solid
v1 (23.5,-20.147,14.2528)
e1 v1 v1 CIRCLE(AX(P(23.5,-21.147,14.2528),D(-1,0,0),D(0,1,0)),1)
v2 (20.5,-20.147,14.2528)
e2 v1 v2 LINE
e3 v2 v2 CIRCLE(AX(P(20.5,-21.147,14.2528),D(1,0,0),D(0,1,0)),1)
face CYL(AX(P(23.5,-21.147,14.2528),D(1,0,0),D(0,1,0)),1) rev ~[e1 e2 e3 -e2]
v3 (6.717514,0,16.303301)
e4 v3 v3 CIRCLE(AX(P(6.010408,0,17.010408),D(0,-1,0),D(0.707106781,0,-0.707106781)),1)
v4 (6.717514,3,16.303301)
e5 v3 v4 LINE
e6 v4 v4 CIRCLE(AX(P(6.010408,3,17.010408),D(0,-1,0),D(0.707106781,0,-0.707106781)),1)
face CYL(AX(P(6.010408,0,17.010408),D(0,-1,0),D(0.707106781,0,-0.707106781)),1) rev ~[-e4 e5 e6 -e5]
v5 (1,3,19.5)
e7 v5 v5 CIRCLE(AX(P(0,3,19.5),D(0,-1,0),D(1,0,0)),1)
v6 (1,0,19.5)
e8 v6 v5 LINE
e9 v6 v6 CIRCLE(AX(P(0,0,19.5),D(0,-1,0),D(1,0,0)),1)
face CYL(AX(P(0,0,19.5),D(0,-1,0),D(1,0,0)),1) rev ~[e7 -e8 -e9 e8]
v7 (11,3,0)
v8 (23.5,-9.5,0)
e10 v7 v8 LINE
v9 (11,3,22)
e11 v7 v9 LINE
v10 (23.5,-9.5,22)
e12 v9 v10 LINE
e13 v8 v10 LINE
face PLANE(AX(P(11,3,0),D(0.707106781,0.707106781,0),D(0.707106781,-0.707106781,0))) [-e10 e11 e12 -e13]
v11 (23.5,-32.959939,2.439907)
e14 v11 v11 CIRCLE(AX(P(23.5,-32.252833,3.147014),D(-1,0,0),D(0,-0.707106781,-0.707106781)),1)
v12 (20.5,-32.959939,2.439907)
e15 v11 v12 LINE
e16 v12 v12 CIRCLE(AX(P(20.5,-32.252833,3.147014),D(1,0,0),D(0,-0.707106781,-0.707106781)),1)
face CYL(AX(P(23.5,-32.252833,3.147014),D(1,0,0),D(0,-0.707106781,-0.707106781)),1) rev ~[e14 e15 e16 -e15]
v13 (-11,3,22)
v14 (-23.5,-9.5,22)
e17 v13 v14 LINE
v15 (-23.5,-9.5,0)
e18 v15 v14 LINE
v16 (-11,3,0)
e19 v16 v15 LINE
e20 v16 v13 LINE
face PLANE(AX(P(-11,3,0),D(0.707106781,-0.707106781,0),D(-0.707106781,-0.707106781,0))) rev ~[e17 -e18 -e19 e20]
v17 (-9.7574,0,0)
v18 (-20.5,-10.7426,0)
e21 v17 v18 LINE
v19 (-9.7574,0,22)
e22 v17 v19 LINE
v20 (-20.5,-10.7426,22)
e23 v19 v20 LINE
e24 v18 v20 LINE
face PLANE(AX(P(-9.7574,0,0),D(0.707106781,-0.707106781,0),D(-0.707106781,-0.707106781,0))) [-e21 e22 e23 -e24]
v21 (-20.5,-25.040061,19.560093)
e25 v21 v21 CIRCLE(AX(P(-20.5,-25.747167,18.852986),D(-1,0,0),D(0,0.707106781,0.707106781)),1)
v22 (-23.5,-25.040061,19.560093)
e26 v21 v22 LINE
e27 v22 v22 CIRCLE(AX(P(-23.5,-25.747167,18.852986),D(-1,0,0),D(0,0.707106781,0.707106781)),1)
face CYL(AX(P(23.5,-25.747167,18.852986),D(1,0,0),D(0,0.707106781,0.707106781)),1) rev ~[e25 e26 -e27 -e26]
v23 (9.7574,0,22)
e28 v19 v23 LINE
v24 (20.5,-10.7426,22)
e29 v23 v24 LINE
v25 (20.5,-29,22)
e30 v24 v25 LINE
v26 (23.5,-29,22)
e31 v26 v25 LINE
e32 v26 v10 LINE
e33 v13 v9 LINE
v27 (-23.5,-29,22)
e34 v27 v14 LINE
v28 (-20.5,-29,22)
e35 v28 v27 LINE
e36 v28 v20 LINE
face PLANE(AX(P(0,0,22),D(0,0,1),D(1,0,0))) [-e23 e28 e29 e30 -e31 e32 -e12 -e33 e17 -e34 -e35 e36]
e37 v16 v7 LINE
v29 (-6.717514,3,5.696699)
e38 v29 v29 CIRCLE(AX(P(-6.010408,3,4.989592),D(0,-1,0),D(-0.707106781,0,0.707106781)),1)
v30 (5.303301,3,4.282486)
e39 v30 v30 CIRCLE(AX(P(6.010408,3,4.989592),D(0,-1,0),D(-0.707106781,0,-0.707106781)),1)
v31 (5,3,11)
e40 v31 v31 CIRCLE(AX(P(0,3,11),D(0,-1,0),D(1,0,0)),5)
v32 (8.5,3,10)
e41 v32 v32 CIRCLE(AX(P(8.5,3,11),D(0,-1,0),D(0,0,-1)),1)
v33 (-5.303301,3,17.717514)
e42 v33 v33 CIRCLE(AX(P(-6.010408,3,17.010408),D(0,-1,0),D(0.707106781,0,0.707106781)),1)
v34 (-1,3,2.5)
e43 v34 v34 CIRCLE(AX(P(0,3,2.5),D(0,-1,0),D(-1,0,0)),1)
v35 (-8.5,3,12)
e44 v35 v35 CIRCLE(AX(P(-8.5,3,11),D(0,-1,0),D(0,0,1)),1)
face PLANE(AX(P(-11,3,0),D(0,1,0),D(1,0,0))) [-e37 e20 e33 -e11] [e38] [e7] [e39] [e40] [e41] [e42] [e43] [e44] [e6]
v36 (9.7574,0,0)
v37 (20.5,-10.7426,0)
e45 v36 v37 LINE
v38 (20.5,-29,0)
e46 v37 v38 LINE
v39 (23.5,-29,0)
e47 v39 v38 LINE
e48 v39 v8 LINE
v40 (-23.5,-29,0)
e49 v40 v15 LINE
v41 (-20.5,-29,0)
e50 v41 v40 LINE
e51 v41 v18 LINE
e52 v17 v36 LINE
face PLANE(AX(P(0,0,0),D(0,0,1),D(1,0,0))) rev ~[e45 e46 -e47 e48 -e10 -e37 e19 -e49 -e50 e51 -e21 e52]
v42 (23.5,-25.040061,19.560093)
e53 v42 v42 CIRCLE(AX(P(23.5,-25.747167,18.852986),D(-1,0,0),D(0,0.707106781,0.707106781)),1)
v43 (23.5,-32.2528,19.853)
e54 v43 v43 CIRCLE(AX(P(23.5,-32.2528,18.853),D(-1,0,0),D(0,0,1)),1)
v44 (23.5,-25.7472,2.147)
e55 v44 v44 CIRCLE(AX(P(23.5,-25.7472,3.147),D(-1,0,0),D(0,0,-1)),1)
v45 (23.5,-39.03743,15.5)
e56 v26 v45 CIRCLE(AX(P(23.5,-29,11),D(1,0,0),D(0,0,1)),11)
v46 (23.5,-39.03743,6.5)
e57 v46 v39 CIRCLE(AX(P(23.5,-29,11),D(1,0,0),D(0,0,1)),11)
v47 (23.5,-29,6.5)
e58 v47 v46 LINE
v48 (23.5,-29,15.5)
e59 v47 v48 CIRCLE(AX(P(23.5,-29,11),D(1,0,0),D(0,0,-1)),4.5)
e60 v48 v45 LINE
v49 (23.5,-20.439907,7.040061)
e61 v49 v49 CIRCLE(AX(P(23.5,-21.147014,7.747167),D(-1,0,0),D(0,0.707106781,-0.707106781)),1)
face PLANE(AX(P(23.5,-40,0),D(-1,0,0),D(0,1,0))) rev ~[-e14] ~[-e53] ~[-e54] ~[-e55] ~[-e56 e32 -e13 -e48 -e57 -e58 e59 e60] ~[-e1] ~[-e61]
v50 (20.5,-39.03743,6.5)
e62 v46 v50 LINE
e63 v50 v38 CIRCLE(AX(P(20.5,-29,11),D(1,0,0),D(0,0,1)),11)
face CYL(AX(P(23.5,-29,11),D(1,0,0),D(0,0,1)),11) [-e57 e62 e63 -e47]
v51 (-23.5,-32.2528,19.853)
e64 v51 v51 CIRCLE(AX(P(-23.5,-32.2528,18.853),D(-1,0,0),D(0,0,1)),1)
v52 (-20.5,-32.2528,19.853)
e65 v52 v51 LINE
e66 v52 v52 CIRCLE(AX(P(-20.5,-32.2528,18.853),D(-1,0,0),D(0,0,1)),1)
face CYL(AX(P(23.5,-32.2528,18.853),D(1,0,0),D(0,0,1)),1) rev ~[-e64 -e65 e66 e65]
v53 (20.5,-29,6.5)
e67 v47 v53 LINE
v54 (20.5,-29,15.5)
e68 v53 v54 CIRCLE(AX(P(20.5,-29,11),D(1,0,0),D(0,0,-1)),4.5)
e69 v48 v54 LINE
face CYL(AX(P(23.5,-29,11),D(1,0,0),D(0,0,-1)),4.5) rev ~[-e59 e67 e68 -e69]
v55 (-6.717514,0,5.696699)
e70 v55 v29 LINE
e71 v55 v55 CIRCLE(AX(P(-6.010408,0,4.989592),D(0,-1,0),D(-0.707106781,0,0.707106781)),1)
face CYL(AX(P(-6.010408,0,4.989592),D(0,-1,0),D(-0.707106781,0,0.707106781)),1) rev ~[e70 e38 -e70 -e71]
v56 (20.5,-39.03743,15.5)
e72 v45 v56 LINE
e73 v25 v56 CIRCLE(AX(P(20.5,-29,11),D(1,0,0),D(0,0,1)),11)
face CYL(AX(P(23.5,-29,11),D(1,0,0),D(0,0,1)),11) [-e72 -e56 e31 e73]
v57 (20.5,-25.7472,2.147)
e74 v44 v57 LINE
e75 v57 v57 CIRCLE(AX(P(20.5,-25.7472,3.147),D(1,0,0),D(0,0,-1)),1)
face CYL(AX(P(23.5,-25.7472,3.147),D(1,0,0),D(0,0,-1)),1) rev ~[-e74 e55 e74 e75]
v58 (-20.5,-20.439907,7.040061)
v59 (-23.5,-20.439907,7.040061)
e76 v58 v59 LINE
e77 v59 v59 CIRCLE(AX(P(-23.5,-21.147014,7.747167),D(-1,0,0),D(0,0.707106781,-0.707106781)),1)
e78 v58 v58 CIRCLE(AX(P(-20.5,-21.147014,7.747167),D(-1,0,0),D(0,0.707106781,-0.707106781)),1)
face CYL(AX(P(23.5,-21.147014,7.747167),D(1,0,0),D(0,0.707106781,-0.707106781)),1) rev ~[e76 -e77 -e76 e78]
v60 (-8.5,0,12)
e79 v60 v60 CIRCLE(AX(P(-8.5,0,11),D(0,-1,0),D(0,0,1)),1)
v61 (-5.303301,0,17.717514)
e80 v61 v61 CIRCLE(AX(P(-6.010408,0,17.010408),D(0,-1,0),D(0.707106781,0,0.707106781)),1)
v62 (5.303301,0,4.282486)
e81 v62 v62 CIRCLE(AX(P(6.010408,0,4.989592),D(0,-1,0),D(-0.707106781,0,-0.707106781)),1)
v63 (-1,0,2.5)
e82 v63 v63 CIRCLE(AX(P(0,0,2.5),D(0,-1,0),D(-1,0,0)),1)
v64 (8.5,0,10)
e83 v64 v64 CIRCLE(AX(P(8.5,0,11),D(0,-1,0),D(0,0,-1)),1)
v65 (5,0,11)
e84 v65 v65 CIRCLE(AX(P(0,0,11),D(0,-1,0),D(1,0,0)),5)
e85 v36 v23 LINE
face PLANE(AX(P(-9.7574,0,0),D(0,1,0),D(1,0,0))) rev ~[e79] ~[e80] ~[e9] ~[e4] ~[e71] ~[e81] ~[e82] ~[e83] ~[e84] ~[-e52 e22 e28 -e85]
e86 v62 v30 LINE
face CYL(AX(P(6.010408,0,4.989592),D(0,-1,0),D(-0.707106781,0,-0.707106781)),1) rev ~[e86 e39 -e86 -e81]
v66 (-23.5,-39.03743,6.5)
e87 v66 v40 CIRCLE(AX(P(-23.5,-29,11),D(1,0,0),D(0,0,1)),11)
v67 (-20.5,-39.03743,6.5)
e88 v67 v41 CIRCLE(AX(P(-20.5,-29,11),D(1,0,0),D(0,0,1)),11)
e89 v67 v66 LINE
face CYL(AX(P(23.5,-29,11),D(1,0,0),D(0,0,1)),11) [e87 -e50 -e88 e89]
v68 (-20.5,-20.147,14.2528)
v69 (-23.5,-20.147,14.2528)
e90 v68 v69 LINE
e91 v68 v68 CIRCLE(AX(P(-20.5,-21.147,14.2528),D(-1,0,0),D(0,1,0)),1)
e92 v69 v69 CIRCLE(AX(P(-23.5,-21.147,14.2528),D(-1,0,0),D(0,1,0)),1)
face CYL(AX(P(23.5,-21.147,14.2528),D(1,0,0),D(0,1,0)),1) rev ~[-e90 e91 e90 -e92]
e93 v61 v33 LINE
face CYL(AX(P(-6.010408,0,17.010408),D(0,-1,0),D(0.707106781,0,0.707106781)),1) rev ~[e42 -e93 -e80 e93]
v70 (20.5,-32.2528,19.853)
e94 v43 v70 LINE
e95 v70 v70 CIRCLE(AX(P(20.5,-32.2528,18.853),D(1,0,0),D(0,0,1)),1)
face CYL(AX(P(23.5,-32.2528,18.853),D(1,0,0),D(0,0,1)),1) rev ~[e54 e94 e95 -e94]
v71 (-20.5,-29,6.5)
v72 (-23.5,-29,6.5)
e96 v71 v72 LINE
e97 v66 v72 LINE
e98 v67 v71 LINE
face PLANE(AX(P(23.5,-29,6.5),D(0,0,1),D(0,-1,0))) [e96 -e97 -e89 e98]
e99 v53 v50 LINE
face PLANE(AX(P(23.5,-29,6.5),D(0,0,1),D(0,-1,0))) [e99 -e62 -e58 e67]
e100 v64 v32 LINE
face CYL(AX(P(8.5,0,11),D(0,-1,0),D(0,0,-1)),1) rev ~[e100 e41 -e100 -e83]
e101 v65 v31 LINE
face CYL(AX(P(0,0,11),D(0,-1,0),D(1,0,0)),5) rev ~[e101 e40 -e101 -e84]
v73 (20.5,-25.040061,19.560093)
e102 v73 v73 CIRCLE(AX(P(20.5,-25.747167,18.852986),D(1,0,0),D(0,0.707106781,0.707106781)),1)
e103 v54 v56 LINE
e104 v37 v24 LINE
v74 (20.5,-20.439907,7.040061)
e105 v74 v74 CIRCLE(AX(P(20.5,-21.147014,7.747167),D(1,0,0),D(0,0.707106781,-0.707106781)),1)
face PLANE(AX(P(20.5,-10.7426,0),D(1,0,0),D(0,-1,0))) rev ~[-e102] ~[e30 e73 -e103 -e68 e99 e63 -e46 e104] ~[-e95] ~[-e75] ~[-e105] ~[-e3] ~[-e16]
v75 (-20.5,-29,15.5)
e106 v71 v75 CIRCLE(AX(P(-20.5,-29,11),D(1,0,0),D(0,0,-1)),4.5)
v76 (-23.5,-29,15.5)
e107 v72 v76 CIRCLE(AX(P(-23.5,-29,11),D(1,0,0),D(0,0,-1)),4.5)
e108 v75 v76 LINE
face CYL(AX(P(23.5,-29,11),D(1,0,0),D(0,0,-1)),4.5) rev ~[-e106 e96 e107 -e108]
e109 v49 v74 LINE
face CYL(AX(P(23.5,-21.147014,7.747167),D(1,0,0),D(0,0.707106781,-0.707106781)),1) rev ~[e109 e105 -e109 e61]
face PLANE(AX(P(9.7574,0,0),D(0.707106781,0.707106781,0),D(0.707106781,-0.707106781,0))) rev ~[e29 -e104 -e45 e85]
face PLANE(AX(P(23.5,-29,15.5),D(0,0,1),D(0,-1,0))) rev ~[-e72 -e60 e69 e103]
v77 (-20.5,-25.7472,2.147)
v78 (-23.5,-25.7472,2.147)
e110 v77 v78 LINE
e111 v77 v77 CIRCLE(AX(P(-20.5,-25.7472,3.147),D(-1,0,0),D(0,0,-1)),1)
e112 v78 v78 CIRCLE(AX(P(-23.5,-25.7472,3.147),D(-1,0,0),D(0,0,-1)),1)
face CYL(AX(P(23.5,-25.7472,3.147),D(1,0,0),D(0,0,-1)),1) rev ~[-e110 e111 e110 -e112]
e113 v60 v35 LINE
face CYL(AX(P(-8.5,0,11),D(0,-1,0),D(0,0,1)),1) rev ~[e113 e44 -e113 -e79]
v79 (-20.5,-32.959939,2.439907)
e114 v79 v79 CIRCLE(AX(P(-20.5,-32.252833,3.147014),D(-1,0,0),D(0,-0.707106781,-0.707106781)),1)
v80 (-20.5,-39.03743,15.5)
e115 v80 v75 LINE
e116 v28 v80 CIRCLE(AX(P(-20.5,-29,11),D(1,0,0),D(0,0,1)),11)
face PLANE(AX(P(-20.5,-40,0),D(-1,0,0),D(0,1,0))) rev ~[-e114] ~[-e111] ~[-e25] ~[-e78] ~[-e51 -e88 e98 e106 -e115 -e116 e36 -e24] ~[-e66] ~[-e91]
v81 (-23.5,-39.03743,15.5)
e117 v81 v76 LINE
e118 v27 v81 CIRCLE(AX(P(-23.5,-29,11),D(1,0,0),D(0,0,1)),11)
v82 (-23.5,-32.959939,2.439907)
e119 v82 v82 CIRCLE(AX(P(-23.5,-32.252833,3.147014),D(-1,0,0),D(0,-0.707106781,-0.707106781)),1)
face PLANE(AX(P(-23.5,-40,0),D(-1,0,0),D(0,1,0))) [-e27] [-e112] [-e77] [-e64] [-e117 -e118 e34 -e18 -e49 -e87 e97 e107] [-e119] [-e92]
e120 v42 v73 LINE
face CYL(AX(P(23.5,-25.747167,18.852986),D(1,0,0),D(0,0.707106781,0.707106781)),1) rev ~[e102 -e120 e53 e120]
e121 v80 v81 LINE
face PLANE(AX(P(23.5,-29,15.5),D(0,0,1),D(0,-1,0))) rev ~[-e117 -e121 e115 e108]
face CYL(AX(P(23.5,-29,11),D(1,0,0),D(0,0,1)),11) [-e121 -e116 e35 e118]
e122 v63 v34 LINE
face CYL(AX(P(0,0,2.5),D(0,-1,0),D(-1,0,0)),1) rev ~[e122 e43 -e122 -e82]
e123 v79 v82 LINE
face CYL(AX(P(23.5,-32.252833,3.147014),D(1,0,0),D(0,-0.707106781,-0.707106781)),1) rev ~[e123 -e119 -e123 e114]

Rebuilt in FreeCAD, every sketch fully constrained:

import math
import FreeCAD as App
import Part
import Sketcher
from FreeCAD import Vector
Q = App.Units.Quantity


def add_polygon(sketch, points):
    """Adds a closed chain of lines whose ends are joined by coincident constraints."""
    first, n = sketch.GeometryCount, len(points)
    for a, b in zip(points, points[1:] + points[:1]):
        sketch.addGeometry(Part.LineSegment(App.Vector(*a, 0), App.Vector(*b, 0)), False)
    for i in range(n):
        sketch.addConstraint(Sketcher.Constraint("Coincident", first + i, 2, first + (i + 1) % n, 1))

doc = App.newDocument("Part")
body = doc.addObject("PartDesign::Body", "Body")

# Sketch on XY plane
sketch1 = doc.addObject("Sketcher::SketchObject", "Sketch")
body.addObject(sketch1)
sketch1.AttachmentSupport = (doc.XY_Plane, [""])
sketch1.MapMode = "FlatFace"
add_polygon(sketch1, [(-23.5, -40), (-20.5, -40), (-20.5, -10.7), (-9.8, 0), (9.8, 0), (20.5, -10.7), (20.5, -40), (23.5, -40), (23.5, -9.5), (11, 3), (-11, 3), (-23.5, -9.5)])  # lines 0-11
sketch1.addConstraint([
    Sketcher.Constraint("Horizontal", 0),
    Sketcher.Constraint("Vertical", 1),
    Sketcher.Constraint("Horizontal", 3),
    Sketcher.Constraint("Vertical", 5),
    Sketcher.Constraint("Horizontal", 6),
    Sketcher.Constraint("Vertical", 7),
    Sketcher.Constraint("Horizontal", 9),
    Sketcher.Constraint("Vertical", 11),
    Sketcher.Constraint("Symmetric", 2, 2, 3, 2, -1, 1),
    Sketcher.Constraint("Symmetric", 1, 2, 4, 2, -2),
    Sketcher.Constraint("Symmetric", 7, 2, 10, 2, -2),
    Sketcher.Constraint("Perpendicular", 2, 4),
    Sketcher.Constraint("Parallel", 4, 8),
    Sketcher.Constraint("Perpendicular", 8, 10),
    Sketcher.Constraint("Horizontal", 0, 2, 5, 2),
    Sketcher.Constraint("DistanceX", 0, 1, 0, 2, Q("3 mm")),
    Sketcher.Constraint("DistanceX", 9, 2, 9, 1, Q("22 mm")),
    Sketcher.Constraint("DistanceY", 7, 1, 7, 2, Q("30.5 mm")),
    Sketcher.Constraint("DistanceY", 0, 2, -1, 1, Q("40 mm")),
    Sketcher.Constraint("DistanceY", -1, 1, 8, 2, Q("3 mm")),
    Sketcher.Constraint("DistanceX", 3, 1, 3, 2, Q("19.5148 mm")),
])
pad1 = doc.addObject("PartDesign::Pad", "Pad")
body.addObject(pad1)
pad1.Profile = sketch1
pad1.Length = 22

# Sketch on YZ plane
sketch2 = doc.addObject("Sketcher::SketchObject", "Sketch001")
body.addObject(sketch2)
sketch2.AttachmentSupport = (doc.YZ_Plane, [""])
sketch2.MapMode = "FlatFace"
sketch2.AttachmentOffset = App.Placement(Vector(0, 0, 23.5), App.Rotation())
sketch2.addGeometry([
    Part.ArcOfCircle(Part.Circle(Vector(-29, 11, 0), Vector(0, 0, 1), 11), math.radians(90), math.radians(156)),  # 0
    Part.LineSegment(Vector(-29, 22, 0), Vector(-41, 22, 0)),  # 1
    Part.LineSegment(Vector(-41, 22, 0), Vector(-41, 0, 0)),  # 2
    Part.LineSegment(Vector(-41, 0, 0), Vector(-29, 0, 0)),  # 3
    Part.ArcOfCircle(Part.Circle(Vector(-29, 11, 0), Vector(0, 0, 1), 11), math.radians(-156), math.radians(-90)),  # 4
    Part.LineSegment(Vector(-39, 6.5, 0), Vector(-29, 6.5, 0)),  # 5
    Part.ArcOfCircle(Part.Circle(Vector(-29, 11, 0), Vector(0, 0, 1), 4.5), math.radians(-90), math.radians(90)),  # 6
    Part.LineSegment(Vector(-29, 15.5, 0), Vector(-39, 15.5, 0)),  # 7
], False)
sketch2.addConstraint([
    Sketcher.Constraint("Tangent", 0, 1, 1, 1),
    Sketcher.Constraint("Coincident", 1, 2, 2, 1),
    Sketcher.Constraint("Coincident", 2, 2, 3, 1),
    Sketcher.Constraint("Tangent", 3, 2, 4, 2),
    Sketcher.Constraint("Coincident", 4, 1, 5, 1),
    Sketcher.Constraint("Tangent", 5, 2, 6, 1),
    Sketcher.Constraint("Tangent", 6, 2, 7, 1),
    Sketcher.Constraint("Coincident", 7, 2, 0, 2),
    Sketcher.Constraint("Horizontal", 1),
    Sketcher.Constraint("Vertical", 2),
    Sketcher.Constraint("Horizontal", 3),
    Sketcher.Constraint("Horizontal", 5),
    Sketcher.Constraint("Horizontal", 7),
    Sketcher.Constraint("Coincident", 4, 3, 0, 3),
    Sketcher.Constraint("Coincident", 6, 3, 0, 3),
    Sketcher.Constraint("Equal", 0, 4),
    Sketcher.Constraint("PointOnObject", 2, 2, -1),
    Sketcher.Constraint("Radius", 0, Q("11 mm")),
    Sketcher.Constraint("Radius", 6, Q("4.5 mm")),
    Sketcher.Constraint("DistanceX", 1, 2, 1, 1, Q("12 mm")),
    Sketcher.Constraint("DistanceX", 0, 3, -1, 1, Q("29 mm")),
])
pocket1 = doc.addObject("PartDesign::Pocket", "Pocket")
body.addObject(pocket1)
pocket1.Profile = sketch2
pocket1.Type = "ThroughAll"

# Sketch on XZ plane
sketch3 = doc.addObject("Sketcher::SketchObject", "Sketch002")
body.addObject(sketch3)
sketch3.AttachmentSupport = (doc.XZ_Plane, [""])
sketch3.MapMode = "FlatFace"
sketch3.addGeometry(Part.Circle(Vector(0, 11, 0), Vector(0, 0, 1), 5), False)
sketch3.addConstraint([
    Sketcher.Constraint("PointOnObject", 0, 3, -2),
    Sketcher.Constraint("Diameter", 0, Q("10 mm")),
    Sketcher.Constraint("DistanceY", -1, 1, 0, 3, Q("11 mm")),
])
pocket2 = doc.addObject("PartDesign::Pocket", "Pocket001")
body.addObject(pocket2)
pocket2.Profile = sketch3
pocket2.Type = "ThroughAll"

# Sketch on YZ plane
sketch4 = doc.addObject("Sketcher::SketchObject", "Sketch003")
body.addObject(sketch4)
sketch4.AttachmentSupport = (doc.YZ_Plane, [""])
sketch4.MapMode = "FlatFace"
sketch4.AttachmentOffset = App.Placement(Vector(0, 0, 23.5), App.Rotation())
sketch4.addGeometry(Part.Circle(Vector(-25.7, 3.1, 0), Vector(0, 0, 1), 1), False)
sketch4.addConstraint([
    Sketcher.Constraint("Diameter", 0, Q("2 mm")),
    Sketcher.Constraint("DistanceY", -1, 1, 0, 3, Q("3.147 mm")),
    Sketcher.Constraint("DistanceX", 0, 3, -1, 1, Q("25.7472 mm")),
])
pocket3 = doc.addObject("PartDesign::Pocket", "Pocket002")
body.addObject(pocket3)
pocket3.Profile = sketch4
pocket3.Type = "ThroughAll"
doc.recompute()

datumline = doc.addObject("PartDesign::Line", "DatumLine")
body.addObject(datumline)
datumline.Placement = App.Placement(Vector(0, -29, 11), App.Rotation(Vector(0, 0, 1), Vector(1, 0, 0)))
polarpattern = doc.addObject("PartDesign::PolarPattern", "PolarPattern")
body.addObject(polarpattern)
polarpattern.Originals = [pocket3]
polarpattern.Axis = (datumline, [""])
polarpattern.Angle = 360
polarpattern.Occurrences = 8
body.Tip = polarpattern

# Sketch on XZ plane
sketch5 = doc.addObject("Sketcher::SketchObject", "Sketch004")
body.addObject(sketch5)
sketch5.AttachmentSupport = (doc.XZ_Plane, [""])
sketch5.MapMode = "FlatFace"
sketch5.addGeometry(Part.Circle(Vector(0, 19.5, 0), Vector(0, 0, 1), 1), False)
sketch5.addConstraint([
    Sketcher.Constraint("PointOnObject", 0, 3, -2),
    Sketcher.Constraint("Diameter", 0, Q("2 mm")),
    Sketcher.Constraint("DistanceY", -1, 1, 0, 3, Q("19.5 mm")),
])
pocket4 = doc.addObject("PartDesign::Pocket", "Pocket003")
body.addObject(pocket4)
pocket4.Profile = sketch5
pocket4.Type = "ThroughAll"
doc.recompute()

datumline2 = doc.addObject("PartDesign::Line", "DatumLine001")
body.addObject(datumline2)
datumline2.Placement = App.Placement(Vector(0, 0, 11), App.Rotation(Vector(0, 0, 1), Vector(0, 1, 0)))
polarpattern2 = doc.addObject("PartDesign::PolarPattern", "PolarPattern001")
body.addObject(polarpattern2)
polarpattern2.Originals = [pocket4]
polarpattern2.Axis = (datumline2, [""])
polarpattern2.Angle = 360
polarpattern2.Occurrences = 8
body.Tip = polarpattern2

doc.recompute()
